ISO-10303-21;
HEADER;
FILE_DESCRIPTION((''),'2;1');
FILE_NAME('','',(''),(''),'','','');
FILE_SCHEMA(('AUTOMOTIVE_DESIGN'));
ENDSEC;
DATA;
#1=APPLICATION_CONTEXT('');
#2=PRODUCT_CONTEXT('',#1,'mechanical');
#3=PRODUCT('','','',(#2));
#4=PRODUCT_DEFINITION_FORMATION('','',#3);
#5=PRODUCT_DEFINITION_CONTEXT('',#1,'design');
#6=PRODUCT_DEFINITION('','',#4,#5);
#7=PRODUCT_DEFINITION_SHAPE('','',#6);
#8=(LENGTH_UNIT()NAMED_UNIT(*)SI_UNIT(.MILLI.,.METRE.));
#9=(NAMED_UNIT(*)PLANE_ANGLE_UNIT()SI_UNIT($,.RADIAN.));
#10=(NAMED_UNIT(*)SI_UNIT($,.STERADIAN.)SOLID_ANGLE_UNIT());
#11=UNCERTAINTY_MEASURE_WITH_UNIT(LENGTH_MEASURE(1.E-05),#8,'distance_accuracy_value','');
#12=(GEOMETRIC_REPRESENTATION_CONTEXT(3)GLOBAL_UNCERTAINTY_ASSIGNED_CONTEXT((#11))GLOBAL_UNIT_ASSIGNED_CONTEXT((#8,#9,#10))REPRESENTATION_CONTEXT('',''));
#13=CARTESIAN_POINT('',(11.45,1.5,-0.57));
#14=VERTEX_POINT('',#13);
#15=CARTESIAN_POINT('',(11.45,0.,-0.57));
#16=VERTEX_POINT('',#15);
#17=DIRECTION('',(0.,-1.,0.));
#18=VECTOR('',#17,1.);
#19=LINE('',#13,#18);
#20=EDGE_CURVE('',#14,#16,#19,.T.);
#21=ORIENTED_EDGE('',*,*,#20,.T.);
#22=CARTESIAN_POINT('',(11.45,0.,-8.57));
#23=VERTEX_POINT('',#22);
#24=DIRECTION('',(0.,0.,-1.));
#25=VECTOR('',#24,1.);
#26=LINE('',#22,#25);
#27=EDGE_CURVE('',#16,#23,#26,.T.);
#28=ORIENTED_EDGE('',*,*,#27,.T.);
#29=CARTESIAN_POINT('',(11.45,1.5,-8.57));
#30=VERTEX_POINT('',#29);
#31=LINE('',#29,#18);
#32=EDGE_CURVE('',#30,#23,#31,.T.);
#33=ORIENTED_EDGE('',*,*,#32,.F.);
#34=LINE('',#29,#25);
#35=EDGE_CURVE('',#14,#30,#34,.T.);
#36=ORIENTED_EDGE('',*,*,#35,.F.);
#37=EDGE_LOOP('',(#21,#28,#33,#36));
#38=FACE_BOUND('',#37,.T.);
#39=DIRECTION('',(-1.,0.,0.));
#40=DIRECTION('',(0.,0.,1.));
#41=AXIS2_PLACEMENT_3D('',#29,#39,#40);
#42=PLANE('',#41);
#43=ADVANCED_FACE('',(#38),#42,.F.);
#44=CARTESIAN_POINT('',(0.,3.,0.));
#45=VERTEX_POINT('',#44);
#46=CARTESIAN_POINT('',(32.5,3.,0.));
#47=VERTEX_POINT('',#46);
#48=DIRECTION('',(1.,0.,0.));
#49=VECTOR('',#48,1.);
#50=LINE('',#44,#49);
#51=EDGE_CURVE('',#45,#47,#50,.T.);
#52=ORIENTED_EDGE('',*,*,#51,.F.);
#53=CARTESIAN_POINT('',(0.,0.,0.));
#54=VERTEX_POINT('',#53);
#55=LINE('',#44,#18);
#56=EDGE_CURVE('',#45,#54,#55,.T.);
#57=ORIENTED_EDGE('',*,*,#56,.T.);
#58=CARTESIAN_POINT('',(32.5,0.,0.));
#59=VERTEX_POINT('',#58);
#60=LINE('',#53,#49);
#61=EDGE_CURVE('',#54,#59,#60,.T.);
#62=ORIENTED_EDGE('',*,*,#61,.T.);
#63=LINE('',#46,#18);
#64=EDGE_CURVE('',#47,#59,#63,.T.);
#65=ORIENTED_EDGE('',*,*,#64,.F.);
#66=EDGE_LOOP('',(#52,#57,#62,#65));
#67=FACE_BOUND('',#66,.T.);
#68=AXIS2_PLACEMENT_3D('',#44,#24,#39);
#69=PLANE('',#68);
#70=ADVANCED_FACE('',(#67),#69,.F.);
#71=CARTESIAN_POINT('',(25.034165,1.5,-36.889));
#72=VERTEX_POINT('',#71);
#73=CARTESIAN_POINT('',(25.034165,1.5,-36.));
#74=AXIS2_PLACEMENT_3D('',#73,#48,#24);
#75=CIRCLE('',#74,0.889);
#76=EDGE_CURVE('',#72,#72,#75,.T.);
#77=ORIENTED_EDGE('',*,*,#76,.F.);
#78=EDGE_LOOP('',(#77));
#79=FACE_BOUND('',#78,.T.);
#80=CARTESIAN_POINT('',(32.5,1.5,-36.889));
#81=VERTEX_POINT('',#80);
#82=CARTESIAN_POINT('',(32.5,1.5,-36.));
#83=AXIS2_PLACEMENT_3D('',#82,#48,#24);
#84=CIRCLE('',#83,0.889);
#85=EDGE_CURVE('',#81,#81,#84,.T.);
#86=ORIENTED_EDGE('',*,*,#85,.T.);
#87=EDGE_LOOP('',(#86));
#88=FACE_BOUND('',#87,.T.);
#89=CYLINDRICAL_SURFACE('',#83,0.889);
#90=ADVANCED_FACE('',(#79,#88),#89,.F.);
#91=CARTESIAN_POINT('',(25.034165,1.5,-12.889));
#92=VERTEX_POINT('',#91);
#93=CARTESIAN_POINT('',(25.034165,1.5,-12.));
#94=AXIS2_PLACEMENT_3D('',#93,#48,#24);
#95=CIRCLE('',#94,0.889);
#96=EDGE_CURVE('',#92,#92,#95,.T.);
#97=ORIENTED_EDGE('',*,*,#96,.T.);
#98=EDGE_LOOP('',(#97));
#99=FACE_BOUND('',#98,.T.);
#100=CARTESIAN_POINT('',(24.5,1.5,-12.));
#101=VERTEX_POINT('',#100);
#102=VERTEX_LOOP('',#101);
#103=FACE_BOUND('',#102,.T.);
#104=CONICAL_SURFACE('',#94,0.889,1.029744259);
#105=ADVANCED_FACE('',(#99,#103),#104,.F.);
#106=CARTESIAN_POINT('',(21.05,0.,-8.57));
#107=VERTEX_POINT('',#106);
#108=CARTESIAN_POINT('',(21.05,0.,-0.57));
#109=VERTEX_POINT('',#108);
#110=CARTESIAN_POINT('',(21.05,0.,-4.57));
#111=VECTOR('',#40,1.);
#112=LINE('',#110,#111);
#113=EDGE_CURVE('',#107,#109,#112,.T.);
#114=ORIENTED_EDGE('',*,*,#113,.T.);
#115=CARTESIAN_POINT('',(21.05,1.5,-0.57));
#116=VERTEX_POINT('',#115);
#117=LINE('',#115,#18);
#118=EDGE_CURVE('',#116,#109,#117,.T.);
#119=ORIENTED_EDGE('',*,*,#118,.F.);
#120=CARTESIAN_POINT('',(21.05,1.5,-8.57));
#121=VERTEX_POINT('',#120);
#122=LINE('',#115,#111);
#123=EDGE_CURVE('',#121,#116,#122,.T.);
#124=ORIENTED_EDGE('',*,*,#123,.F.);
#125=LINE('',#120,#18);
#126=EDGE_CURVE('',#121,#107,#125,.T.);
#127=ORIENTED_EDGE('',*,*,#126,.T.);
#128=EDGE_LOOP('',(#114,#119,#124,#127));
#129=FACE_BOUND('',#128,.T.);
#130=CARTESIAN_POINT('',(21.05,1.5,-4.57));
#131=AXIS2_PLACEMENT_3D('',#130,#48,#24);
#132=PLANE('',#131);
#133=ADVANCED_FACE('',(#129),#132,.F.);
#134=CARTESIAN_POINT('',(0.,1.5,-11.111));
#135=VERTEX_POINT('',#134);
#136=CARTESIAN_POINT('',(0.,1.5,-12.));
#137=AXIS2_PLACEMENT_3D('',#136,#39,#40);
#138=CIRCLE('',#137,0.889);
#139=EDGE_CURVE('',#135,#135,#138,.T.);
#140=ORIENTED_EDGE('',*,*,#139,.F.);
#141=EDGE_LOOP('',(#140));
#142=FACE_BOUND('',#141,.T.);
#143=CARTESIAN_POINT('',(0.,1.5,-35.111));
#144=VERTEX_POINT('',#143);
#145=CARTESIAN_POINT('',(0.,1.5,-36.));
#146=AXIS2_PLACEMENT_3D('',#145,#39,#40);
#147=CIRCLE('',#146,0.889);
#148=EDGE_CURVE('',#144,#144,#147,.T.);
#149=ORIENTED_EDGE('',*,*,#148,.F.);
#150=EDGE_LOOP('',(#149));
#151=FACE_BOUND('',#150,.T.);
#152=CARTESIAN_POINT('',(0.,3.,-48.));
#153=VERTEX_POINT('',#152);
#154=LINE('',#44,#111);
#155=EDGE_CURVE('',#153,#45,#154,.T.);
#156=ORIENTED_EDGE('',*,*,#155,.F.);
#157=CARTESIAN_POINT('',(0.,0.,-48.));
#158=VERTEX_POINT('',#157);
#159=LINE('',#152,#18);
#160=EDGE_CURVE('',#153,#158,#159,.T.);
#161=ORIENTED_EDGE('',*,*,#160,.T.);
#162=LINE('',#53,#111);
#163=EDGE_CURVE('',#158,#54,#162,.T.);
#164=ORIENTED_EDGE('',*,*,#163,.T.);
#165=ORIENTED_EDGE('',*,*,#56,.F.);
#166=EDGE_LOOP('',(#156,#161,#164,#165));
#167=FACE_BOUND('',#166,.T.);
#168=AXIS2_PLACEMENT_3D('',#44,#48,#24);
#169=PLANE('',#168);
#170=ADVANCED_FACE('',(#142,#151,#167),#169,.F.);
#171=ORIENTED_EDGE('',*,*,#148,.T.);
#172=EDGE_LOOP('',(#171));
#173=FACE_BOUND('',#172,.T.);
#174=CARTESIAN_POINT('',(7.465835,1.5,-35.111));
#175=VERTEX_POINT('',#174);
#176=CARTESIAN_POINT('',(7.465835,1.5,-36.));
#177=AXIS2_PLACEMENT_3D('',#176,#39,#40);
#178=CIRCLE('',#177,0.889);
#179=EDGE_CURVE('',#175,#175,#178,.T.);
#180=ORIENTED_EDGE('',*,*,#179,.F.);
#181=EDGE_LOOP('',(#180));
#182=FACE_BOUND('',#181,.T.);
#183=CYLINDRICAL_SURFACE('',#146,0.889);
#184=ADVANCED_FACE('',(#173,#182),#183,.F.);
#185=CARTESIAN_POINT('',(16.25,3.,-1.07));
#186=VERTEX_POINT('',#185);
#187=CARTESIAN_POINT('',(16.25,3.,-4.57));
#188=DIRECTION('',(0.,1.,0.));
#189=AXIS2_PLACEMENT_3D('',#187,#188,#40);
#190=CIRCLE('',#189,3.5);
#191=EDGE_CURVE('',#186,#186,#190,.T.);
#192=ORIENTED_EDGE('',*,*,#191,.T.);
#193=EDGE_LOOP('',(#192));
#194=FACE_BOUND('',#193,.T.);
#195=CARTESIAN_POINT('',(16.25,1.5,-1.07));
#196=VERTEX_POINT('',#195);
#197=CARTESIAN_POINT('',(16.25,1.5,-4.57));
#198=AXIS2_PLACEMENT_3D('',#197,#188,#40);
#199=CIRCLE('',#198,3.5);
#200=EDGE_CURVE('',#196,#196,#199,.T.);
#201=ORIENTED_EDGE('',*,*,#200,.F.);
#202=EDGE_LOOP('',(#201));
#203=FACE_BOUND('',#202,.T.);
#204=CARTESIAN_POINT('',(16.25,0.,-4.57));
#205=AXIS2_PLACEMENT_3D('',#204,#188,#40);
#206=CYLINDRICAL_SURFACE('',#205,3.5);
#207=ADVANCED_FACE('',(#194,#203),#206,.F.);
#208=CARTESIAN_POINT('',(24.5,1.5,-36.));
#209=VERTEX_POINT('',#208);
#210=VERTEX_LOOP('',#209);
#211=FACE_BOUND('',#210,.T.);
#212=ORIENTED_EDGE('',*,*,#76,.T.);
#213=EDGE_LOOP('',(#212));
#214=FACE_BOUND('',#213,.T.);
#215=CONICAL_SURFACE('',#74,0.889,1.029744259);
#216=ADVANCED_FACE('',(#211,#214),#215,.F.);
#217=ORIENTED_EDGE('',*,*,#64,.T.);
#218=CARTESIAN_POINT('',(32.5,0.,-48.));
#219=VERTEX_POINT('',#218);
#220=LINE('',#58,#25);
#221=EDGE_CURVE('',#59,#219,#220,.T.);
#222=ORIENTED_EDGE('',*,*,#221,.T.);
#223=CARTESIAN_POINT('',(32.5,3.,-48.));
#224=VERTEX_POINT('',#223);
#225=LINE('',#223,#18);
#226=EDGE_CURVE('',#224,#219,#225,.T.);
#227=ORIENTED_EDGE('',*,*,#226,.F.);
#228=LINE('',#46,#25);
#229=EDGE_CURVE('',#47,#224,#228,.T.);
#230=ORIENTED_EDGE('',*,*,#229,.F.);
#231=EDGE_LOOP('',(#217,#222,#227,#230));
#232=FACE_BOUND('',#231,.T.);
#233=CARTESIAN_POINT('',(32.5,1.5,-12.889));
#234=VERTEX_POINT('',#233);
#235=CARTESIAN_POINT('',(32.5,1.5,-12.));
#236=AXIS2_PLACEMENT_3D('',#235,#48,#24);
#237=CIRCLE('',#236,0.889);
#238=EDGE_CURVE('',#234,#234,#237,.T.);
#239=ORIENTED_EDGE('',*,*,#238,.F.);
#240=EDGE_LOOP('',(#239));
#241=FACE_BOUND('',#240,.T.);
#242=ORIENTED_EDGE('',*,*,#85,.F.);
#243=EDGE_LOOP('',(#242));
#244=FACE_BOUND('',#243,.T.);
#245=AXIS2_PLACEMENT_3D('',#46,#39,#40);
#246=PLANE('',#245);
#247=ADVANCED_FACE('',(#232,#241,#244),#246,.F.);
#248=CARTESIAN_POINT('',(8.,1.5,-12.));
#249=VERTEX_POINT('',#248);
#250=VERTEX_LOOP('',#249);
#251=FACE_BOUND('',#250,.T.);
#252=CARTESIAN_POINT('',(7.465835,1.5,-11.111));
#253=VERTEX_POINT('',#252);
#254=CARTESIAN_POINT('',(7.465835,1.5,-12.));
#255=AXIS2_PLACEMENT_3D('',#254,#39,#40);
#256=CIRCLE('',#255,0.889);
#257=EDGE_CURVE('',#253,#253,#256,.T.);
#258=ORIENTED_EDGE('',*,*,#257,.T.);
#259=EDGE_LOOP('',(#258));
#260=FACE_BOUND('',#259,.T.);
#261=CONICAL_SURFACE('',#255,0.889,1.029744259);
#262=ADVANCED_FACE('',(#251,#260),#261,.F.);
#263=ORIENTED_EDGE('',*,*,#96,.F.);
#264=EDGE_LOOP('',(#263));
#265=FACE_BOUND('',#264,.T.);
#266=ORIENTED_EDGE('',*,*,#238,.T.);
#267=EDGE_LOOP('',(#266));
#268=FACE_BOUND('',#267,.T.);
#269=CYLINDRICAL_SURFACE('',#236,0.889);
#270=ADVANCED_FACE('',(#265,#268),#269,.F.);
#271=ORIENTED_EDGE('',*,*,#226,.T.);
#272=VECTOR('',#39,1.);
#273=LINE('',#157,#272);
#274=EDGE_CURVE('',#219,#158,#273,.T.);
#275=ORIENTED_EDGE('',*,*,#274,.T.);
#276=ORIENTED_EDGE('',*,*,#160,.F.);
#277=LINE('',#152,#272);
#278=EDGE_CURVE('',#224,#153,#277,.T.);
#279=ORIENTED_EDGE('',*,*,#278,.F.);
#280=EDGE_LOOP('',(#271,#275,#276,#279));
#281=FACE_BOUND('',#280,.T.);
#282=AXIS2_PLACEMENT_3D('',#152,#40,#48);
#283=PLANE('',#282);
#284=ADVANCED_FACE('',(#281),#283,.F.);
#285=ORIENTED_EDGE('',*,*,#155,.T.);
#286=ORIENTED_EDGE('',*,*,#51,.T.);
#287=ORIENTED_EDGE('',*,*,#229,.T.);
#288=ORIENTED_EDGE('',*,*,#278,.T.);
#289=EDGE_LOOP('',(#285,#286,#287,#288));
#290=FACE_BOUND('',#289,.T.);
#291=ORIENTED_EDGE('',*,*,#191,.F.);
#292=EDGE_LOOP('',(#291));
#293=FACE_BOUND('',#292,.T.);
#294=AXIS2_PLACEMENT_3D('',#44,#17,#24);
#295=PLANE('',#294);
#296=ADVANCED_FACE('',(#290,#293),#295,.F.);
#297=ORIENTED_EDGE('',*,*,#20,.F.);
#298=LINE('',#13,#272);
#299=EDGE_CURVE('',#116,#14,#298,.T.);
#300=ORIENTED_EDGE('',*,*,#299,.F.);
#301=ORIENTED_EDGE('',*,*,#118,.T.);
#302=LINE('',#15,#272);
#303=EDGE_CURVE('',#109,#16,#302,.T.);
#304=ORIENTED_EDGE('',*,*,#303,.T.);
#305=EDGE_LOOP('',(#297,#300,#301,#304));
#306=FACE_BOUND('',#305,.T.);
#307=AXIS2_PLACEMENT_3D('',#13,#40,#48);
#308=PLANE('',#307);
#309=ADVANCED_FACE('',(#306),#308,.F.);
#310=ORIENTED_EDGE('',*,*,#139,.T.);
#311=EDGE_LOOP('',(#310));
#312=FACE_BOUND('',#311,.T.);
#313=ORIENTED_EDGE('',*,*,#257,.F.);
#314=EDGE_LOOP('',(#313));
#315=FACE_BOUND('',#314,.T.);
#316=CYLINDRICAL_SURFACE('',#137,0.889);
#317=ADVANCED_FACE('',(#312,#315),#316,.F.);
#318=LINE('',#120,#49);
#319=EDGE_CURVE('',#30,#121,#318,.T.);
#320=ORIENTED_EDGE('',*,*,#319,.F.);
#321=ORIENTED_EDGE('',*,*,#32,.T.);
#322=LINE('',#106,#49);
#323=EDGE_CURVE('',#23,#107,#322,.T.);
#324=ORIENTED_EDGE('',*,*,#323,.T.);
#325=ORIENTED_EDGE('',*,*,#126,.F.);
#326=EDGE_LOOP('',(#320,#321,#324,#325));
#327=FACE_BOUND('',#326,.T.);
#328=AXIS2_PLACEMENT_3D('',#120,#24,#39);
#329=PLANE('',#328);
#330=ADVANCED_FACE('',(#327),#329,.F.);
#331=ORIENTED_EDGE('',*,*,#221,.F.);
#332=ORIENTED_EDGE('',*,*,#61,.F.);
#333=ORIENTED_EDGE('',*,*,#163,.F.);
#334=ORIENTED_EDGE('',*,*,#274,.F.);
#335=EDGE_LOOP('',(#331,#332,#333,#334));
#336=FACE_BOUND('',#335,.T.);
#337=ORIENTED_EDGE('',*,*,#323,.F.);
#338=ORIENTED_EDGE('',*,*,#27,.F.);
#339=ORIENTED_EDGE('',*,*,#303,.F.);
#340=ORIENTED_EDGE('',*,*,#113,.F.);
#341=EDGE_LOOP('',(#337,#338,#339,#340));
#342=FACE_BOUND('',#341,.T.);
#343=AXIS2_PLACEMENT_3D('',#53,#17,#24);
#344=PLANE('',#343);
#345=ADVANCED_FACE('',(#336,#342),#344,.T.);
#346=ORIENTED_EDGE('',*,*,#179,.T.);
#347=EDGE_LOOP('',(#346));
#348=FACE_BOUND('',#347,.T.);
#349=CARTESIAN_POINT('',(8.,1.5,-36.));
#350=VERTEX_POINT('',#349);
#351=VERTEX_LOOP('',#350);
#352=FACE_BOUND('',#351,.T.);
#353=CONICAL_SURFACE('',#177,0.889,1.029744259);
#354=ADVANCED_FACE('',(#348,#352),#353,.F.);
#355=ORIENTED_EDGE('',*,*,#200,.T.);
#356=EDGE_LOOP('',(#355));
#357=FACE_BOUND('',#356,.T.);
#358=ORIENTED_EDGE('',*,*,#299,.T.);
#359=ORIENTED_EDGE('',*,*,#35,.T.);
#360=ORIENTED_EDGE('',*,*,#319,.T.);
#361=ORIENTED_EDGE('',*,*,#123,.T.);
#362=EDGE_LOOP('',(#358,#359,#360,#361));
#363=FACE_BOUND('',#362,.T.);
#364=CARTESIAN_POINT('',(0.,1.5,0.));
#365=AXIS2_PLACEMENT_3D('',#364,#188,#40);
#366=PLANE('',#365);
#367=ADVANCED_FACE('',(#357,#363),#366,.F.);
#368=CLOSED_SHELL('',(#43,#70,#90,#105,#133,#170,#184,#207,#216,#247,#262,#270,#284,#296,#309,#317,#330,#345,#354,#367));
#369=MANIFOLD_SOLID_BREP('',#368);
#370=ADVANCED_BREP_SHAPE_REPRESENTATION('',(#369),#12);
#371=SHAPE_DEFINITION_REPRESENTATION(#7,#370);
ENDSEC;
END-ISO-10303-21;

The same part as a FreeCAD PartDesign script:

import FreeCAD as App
import Part
import Sketcher
from FreeCAD import Vector
Q = App.Units.Quantity

doc = App.newDocument("Part")
body = doc.addObject("PartDesign::Body", "Body")

# Sketch on XZ plane
sketch1 = doc.addObject("Sketcher::SketchObject", "Sketch")
body.addObject(sketch1)
sketch1.AttachmentSupport = (doc.XZ_Plane, [""])
sketch1.MapMode = "FlatFace"
sketch1.addGeometry([
    Part.LineSegment(Vector(0, -48, 0), Vector(0, 0, 0)),
    Part.LineSegment(Vector(0, 0, 0), Vector(32.5, 0, 0)),
    Part.LineSegment(Vector(32.5, 0, 0), Vector(32.5, -48, 0)),
    Part.LineSegment(Vector(32.5, -48, 0), Vector(0, -48, 0)),
], False)
sketch1.addConstraint([
    Sketcher.Constraint("Coincident", 0, 2, 1, 1),
    Sketcher.Constraint("Coincident", 1, 2, 2, 1),
    Sketcher.Constraint("Coincident", 2, 2, 3, 1),
    Sketcher.Constraint("Coincident", 3, 2, 0, 1),
    Sketcher.Constraint("Vertical", 0),
    Sketcher.Constraint("Horizontal", 1),
    Sketcher.Constraint("Vertical", 2),
    Sketcher.Constraint("Horizontal", 3),
    Sketcher.Constraint("Coincident", 0, 2, -1, 1),
    Sketcher.Constraint("DistanceY", 0, 1, 0, 2, Q("48 mm")),
    Sketcher.Constraint("DistanceX", 1, 1, 1, 2, Q("32.5 mm")),
])
pad1 = doc.addObject("PartDesign::Pad", "Pad")
body.addObject(pad1)
pad1.Profile = sketch1
pad1.Length = 3
pad1.Reversed = True

# Sketch on YZ plane
sketch2 = doc.addObject("Sketcher::SketchObject", "Sketch001")
body.addObject(sketch2)
sketch2.AttachmentSupport = (doc.YZ_Plane, [""])
sketch2.MapMode = "FlatFace"
sketch2.addGeometry([
    Part.Circle(Vector(1.5, -36, 0), Vector(0, 0, 1), 0.889),
    Part.Circle(Vector(1.5, -12, 0), Vector(0, 0, 1), 0.889),
], False)
sketch2.addConstraint([
    Sketcher.Constraint("Equal", 0, 1),
    Sketcher.Constraint("Vertical", 0, 3, 1, 3),
    Sketcher.Constraint("Diameter", 0, Q("1.778 mm")),
    Sketcher.Constraint("DistanceY", 0, 3, -1, 1, Q("36 mm")),
    Sketcher.Constraint("DistanceY", 1, 3, -1, 1, Q("12 mm")),
    Sketcher.Constraint("DistanceX", -1, 1, 0, 3, Q("1.5 mm")),
])
doc.recompute()
hole = doc.addObject("PartDesign::Hole", "Hole")
body.addObject(hole)
hole.Profile = sketch2
hole.ThreadType = "None"
hole.Diameter = 1.778
hole.DepthType = "Dimension"
hole.Depth = 7.465835
hole.DrillPoint = "Angled"
hole.DrillPointAngle = 118
hole.Reversed = True

# Sketch on YZ plane
sketch3 = doc.addObject("Sketcher::SketchObject", "Sketch002")
body.addObject(sketch3)
sketch3.AttachmentSupport = (doc.YZ_Plane, [""])
sketch3.MapMode = "FlatFace"
sketch3.AttachmentOffset = App.Placement(Vector(0, 0, 32.5), App.Rotation())
sketch3.addGeometry([
    Part.Circle(Vector(1.5, -12, 0), Vector(0, 0, 1), 0.889),
    Part.Circle(Vector(1.5, -36, 0), Vector(0, 0, 1), 0.889),
], False)
sketch3.addConstraint([
    Sketcher.Constraint("Equal", 0, 1),
    Sketcher.Constraint("Vertical", 0, 3, 1, 3),
    Sketcher.Constraint("Diameter", 0, Q("1.778 mm")),
    Sketcher.Constraint("DistanceY", 0, 3, -1, 1, Q("12 mm")),
    Sketcher.Constraint("DistanceY", 1, 3, -1, 1, Q("36 mm")),
    Sketcher.Constraint("DistanceX", -1, 1, 0, 3, Q("1.5 mm")),
])
doc.recompute()
hole2 = doc.addObject("PartDesign::Hole", "Hole001")
body.addObject(hole2)
hole2.Profile = sketch3
hole2.ThreadType = "None"
hole2.Diameter = 1.778
hole2.DepthType = "Dimension"
hole2.Depth = 7.465835
hole2.DrillPoint = "Angled"
hole2.DrillPointAngle = 118

# Sketch on XZ plane
sketch4 = doc.addObject("Sketcher::SketchObject", "Sketch003")
body.addObject(sketch4)
sketch4.AttachmentSupport = (doc.XZ_Plane, [""])
sketch4.MapMode = "FlatFace"
sketch4.addGeometry([
    Part.LineSegment(Vector(21.05, -8.57, 0), Vector(21.05, -0.57, 0)),
    Part.LineSegment(Vector(21.05, -0.57, 0), Vector(11.45, -0.57, 0)),
    Part.LineSegment(Vector(11.45, -0.57, 0), Vector(11.45, -8.57, 0)),
    Part.LineSegment(Vector(11.45, -8.57, 0), Vector(21.05, -8.57, 0)),
], False)
sketch4.addConstraint([
    Sketcher.Constraint("Coincident", 0, 2, 1, 1),
    Sketcher.Constraint("Coincident", 1, 2, 2, 1),
    Sketcher.Constraint("Coincident", 2, 2, 3, 1),
    Sketcher.Constraint("Coincident", 3, 2, 0, 1),
    Sketcher.Constraint("Vertical", 0),
    Sketcher.Constraint("Horizontal", 1),
    Sketcher.Constraint("Vertical", 2),
    Sketcher.Constraint("Horizontal", 3),
    Sketcher.Constraint("DistanceY", 0, 1, 0, 2, Q("8 mm")),
    Sketcher.Constraint("DistanceX", 1, 2, 1, 1, Q("9.6 mm")),
    Sketcher.Constraint("DistanceX", -1, 1, 0, 2, Q("21.05 mm")),
    Sketcher.Constraint("DistanceY", 0, 2, -1, 1, Q("0.57 mm")),
])
pocket1 = doc.addObject("PartDesign::Pocket", "Pocket")
body.addObject(pocket1)
pocket1.Profile = sketch4
pocket1.Length = 1.5

# Sketch on XZ plane
sketch5 = doc.addObject("Sketcher::SketchObject", "Sketch004")
body.addObject(sketch5)
sketch5.AttachmentSupport = (doc.XZ_Plane, [""])
sketch5.MapMode = "FlatFace"
sketch5.AttachmentOffset = App.Placement(Vector(0, 0, -3), App.Rotation())
sketch5.addGeometry(Part.Circle(Vector(16.25, -4.57, 0), Vector(0, 0, 1), 3.5), False)
sketch5.addConstraint([
    Sketcher.Constraint("Diameter", 0, Q("7 mm")),
    Sketcher.Constraint("DistanceX", -1, 1, 0, 3, Q("16.25 mm")),
    Sketcher.Constraint("DistanceY", 0, 3, -1, 1, Q("4.57 mm")),
])
pocket2 = doc.addObject("PartDesign::Pocket", "Pocket001")
body.addObject(pocket2)
pocket2.Profile = sketch5
pocket2.Length = 3
pocket2.Reversed = True

doc.recompute()
